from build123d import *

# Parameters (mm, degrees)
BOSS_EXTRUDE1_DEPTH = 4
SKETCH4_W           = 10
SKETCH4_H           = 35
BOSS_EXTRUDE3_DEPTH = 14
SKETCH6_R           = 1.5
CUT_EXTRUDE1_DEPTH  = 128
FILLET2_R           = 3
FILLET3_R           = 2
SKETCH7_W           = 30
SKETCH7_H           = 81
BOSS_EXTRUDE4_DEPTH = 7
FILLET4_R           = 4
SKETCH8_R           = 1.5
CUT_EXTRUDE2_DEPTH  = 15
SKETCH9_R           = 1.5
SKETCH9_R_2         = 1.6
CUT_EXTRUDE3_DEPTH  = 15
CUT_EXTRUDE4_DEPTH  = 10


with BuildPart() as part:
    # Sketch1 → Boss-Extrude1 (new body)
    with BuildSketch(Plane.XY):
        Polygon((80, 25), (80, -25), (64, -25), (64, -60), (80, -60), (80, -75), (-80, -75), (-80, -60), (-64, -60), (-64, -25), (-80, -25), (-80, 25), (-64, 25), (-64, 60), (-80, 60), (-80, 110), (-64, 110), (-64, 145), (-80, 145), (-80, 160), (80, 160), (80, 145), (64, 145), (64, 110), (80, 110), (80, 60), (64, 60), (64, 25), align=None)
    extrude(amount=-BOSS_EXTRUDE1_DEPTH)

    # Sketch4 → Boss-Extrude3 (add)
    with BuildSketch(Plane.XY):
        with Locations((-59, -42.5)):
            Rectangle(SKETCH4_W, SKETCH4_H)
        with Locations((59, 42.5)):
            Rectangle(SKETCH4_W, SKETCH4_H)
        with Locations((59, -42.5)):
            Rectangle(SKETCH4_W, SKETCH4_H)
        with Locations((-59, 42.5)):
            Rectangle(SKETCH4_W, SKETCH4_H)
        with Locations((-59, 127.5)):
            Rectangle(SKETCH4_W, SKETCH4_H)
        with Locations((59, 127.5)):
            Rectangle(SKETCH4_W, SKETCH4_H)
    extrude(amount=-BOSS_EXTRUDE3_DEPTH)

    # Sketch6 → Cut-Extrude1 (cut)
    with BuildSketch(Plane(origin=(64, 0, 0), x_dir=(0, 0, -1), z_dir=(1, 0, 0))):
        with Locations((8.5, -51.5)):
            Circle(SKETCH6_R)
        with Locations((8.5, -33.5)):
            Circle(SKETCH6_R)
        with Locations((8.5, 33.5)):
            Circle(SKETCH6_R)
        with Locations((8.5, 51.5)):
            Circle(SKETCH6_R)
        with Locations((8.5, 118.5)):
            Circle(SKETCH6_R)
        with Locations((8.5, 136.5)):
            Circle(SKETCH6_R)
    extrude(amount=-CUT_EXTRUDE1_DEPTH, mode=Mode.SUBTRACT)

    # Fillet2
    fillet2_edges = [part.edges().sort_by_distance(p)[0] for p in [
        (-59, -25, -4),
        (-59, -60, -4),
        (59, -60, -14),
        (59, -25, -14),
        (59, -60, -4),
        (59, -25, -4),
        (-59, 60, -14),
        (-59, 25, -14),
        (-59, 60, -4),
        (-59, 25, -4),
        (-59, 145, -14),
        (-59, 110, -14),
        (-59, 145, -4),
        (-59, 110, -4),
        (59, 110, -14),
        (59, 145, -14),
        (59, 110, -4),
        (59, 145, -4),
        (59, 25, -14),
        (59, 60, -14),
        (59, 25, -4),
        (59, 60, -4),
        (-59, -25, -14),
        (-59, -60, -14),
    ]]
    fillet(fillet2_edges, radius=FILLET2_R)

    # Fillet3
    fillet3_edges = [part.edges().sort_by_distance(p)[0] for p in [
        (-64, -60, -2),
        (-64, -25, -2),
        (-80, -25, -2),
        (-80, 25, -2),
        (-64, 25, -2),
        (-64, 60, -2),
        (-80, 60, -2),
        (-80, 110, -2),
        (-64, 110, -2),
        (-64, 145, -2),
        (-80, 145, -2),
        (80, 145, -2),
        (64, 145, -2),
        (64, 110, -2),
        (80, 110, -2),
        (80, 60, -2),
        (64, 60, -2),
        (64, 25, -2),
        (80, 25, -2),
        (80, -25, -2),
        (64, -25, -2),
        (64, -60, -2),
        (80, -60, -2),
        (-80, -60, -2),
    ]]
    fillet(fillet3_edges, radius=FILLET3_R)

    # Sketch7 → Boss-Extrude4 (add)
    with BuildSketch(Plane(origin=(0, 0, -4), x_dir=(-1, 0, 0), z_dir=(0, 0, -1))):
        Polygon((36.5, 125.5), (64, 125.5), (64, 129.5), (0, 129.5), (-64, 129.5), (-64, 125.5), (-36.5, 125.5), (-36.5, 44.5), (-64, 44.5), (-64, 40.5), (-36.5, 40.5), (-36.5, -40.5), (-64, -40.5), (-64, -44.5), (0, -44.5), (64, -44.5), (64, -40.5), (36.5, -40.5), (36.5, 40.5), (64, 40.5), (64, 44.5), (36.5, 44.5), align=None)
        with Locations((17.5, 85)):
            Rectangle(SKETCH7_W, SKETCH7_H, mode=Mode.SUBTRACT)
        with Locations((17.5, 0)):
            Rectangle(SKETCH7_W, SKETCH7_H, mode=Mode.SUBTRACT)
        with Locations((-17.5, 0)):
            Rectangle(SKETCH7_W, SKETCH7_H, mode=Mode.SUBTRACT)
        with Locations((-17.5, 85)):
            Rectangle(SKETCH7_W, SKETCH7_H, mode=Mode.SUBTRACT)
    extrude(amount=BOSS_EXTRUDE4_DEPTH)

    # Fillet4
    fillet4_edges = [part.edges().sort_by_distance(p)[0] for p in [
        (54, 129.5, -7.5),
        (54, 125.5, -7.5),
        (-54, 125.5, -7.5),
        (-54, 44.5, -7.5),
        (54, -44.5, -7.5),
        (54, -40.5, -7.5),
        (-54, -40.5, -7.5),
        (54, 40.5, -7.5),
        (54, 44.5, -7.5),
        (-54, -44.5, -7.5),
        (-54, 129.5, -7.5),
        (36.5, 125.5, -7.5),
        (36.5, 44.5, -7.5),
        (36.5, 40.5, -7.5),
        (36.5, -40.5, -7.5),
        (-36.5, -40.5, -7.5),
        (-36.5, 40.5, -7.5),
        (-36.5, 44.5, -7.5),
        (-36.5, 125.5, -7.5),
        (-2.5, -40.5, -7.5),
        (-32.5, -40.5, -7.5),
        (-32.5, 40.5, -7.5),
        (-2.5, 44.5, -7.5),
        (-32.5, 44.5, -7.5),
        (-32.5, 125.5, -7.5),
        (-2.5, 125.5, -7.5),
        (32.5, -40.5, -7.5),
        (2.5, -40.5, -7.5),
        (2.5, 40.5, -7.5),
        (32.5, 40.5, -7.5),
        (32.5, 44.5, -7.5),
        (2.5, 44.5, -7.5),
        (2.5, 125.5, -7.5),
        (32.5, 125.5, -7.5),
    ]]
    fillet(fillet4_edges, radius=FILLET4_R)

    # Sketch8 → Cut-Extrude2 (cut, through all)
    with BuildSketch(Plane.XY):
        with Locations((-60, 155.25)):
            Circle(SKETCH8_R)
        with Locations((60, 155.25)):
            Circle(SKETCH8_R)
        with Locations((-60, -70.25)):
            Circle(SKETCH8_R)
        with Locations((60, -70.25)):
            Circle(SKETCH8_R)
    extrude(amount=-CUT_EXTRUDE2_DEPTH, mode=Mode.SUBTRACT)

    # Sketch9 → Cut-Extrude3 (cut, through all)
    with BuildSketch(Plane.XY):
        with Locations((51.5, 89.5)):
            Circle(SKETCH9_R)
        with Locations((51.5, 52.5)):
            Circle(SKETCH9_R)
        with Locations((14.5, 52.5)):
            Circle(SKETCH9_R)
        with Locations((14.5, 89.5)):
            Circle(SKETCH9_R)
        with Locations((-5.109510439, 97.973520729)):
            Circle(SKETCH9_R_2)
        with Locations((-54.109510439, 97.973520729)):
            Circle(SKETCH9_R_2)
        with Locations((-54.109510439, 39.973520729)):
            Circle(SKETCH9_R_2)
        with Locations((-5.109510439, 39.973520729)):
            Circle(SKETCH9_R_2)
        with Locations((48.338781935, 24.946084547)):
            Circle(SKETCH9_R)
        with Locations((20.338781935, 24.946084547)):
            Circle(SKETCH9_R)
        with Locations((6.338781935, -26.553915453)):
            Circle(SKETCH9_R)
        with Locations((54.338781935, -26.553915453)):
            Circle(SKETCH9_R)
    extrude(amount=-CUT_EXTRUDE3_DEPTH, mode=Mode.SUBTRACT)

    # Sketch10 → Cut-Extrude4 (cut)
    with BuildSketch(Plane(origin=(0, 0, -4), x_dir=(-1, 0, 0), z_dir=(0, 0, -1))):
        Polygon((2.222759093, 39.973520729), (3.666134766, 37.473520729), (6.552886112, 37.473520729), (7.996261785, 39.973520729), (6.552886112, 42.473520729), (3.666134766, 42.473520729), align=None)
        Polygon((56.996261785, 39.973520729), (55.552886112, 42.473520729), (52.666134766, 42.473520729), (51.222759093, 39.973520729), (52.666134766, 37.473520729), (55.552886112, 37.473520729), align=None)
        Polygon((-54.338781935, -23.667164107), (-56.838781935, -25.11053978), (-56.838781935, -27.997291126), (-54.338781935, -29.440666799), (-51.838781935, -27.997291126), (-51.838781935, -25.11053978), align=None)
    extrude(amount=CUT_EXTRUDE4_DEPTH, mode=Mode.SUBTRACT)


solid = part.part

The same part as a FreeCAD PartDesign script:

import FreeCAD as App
import Part
import Sketcher
from FreeCAD import Vector
Q = App.Units.Quantity


def edges_at(feature, points):
    """Names of the edges that pass closest to the given points."""
    edges = feature.Shape.Edges
    near = lambda p: min(range(len(edges)), key=lambda i: edges[i].distToShape(Part.Vertex(*p))[0])
    return sorted({f"Edge{near(p) + 1}" for p in points})


def add_polygon(sketch, points):
    """Adds a closed chain of lines whose ends are joined by coincident constraints."""
    first, n = sketch.GeometryCount, len(points)
    for a, b in zip(points, points[1:] + points[:1]):
        sketch.addGeometry(Part.LineSegment(App.Vector(*a, 0), App.Vector(*b, 0)), False)
    for i in range(n):
        sketch.addConstraint(Sketcher.Constraint("Coincident", first + i, 2, first + (i + 1) % n, 1))

doc = App.newDocument("Part")
params = doc.addObject("Spreadsheet::Sheet", "Params")
for row, (alias, value) in enumerate([
    ("sketch1_width", "16 mm"),
    ("sketch1_width2", "160 mm"),
    ("sketch1_height", "50 mm"),
    ("sketch1_height2", "35 mm"),
    ("sketch1_height3", "15 mm"),
    ("pad1_length", "4 mm"),
    ("sketch2_width", "10 mm"),
    ("sketch2_height", "35 mm"),
    ("pad2_length", "14 mm"),
    ("sketch3_diameter", "3 mm"),
    ("pocket1_length", "128 mm"),
    ("fillet_radius", "3 mm"),
    ("fillet2_radius", "2 mm"),
    ("sketch4_width", "128 mm"),
    ("sketch4_width2", "30 mm"),
    ("sketch4_height", "4 mm"),
    ("sketch4_height2", "81 mm"),
    ("sketch4_width3", "27.5 mm"),
    ("pad3_length", "7 mm"),
    ("fillet3_radius", "4 mm"),
    ("sketch5_diameter", "3 mm"),
    ("sketch6_diameter", "3 mm"),
    ("sketch6_diameter2", "3.2 mm"),
    ("pocket4_length", "10 mm"),
], start=1):
    params.set(f"A{row}", alias)
    params.set(f"B{row}", "=" + value)
    params.setAlias(f"B{row}", alias)

body = doc.addObject("PartDesign::Body", "Body")

# Sketch on XY plane
sketch1 = body.newObject("Sketcher::SketchObject", "Sketch")
sketch1.AttachmentSupport = (doc.getObject("XY_Plane"), [""])
sketch1.MapMode = "FlatFace"
add_polygon(sketch1, [(80, -25), (80, 25), (64, 25), (64, 60), (80, 60), (80, 110), (64, 110), (64, 145), (80, 145), (80, 160), (-80, 160), (-80, 145), (-64, 145), (-64, 110), (-80, 110), (-80, 60), (-64, 60), (-64, 25), (-80, 25), (-80, -25), (-64, -25), (-64, -60), (-80, -60), (-80, -75), (80, -75), (80, -60), (64, -60), (64, -25)])  # lines 0-27
sketch1.addConstraint(Sketcher.Constraint("Vertical", 0))
sketch1.addConstraint(Sketcher.Constraint("Horizontal", 1))
sketch1.addConstraint(Sketcher.Constraint("Vertical", 2))
sketch1.addConstraint(Sketcher.Constraint("Horizontal", 3))
sketch1.addConstraint(Sketcher.Constraint("Vertical", 4))
sketch1.addConstraint(Sketcher.Constraint("Horizontal", 5))
sketch1.addConstraint(Sketcher.Constraint("Vertical", 6))
sketch1.addConstraint(Sketcher.Constraint("Horizontal", 7))
sketch1.addConstraint(Sketcher.Constraint("Vertical", 8))
sketch1.addConstraint(Sketcher.Constraint("Horizontal", 9))
sketch1.addConstraint(Sketcher.Constraint("Vertical", 10))
sketch1.addConstraint(Sketcher.Constraint("Horizontal", 11))
sketch1.addConstraint(Sketcher.Constraint("Vertical", 12))
sketch1.addConstraint(Sketcher.Constraint("Horizontal", 13))
sketch1.addConstraint(Sketcher.Constraint("Vertical", 14))
sketch1.addConstraint(Sketcher.Constraint("Horizontal", 15))
sketch1.addConstraint(Sketcher.Constraint("Vertical", 16))
sketch1.addConstraint(Sketcher.Constraint("Horizontal", 17))
sketch1.addConstraint(Sketcher.Constraint("Vertical", 18))
sketch1.addConstraint(Sketcher.Constraint("Horizontal", 19))
sketch1.addConstraint(Sketcher.Constraint("Vertical", 20))
sketch1.addConstraint(Sketcher.Constraint("Horizontal", 21))
sketch1.addConstraint(Sketcher.Constraint("Vertical", 22))
sketch1.addConstraint(Sketcher.Constraint("Horizontal", 23))
sketch1.addConstraint(Sketcher.Constraint("Vertical", 24))
sketch1.addConstraint(Sketcher.Constraint("Horizontal", 25))
sketch1.addConstraint(Sketcher.Constraint("Vertical", 26))
sketch1.addConstraint(Sketcher.Constraint("Horizontal", 27))
sketch1.addConstraint(Sketcher.Constraint("Symmetric", 0, 2, 18, 2, -1, 1))
sketch1.addConstraint(Sketcher.Constraint("Symmetric", 2, 2, 20, 2, -1, 1))
sketch1.addConstraint(Sketcher.Constraint("Symmetric", 14, 2, 24, 2, -1, 1))
sketch1.addConstraint(Sketcher.Constraint("Symmetric", 16, 2, 26, 2, -1, 1))
sketch1.addConstraint(Sketcher.Constraint("Symmetric", 7, 2, 10, 2, -2))
sketch1.addConstraint(Sketcher.Constraint("Symmetric", 5, 2, 12, 2, -2))
sketch1.addConstraint(Sketcher.Constraint("Symmetric", 3, 2, 14, 2, -2))
sketch1.addConstraint(Sketcher.Constraint("Symmetric", 1, 2, 16, 2, -2))
sketch1.addConstraint(Sketcher.Constraint("Vertical", 0, 2, 3, 2))
sketch1.addConstraint(Sketcher.Constraint("Vertical", 2, 2, 5, 2))
sketch1.addConstraint(Sketcher.Constraint("Vertical", 4, 2, 7, 2))
sketch1.addConstraint(Sketcher.Constraint("Vertical", 18, 2, 21, 2))
sketch1.addConstraint(Sketcher.Constraint("Equal", 0, 4))
sketch1.addConstraint(Sketcher.Constraint("Equal", 2, 6))
sketch1.addConstraint(Sketcher.Constraint("Equal", 10, 22))
sketch1.addConstraint(Sketcher.Constraint("DistanceX", 1, 2, 1, 1, 16.0))
sketch1.addConstraint(Sketcher.Constraint("DistanceX", 9, 2, 9, 1, 160.0))
sketch1.addConstraint(Sketcher.Constraint("DistanceY", 0, 1, 0, 2, 50.0))
sketch1.addConstraint(Sketcher.Constraint("DistanceY", 2, 1, 2, 2, 35.0))
sketch1.addConstraint(Sketcher.Constraint("DistanceY", 8, 1, 8, 2, 15.0))
sketch1.setExpression("Constraints[71]", "Params.sketch1_width")
sketch1.setExpression("Constraints[72]", "Params.sketch1_width2")
sketch1.setExpression("Constraints[73]", "Params.sketch1_height")
sketch1.setExpression("Constraints[74]", "Params.sketch1_height2")
sketch1.setExpression("Constraints[75]", "Params.sketch1_height3")
pad1 = body.newObject("PartDesign::Pad", "Pad")
pad1.Profile = sketch1
pad1.setExpression("Length", "Params.pad1_length")
pad1.Reversed = True

# Sketch on XY plane
sketch2 = body.newObject("Sketcher::SketchObject", "Sketch001")
sketch2.AttachmentSupport = (doc.getObject("XY_Plane"), [""])
sketch2.MapMode = "FlatFace"
add_polygon(sketch2, [(-64, -25), (-64, -60), (-54, -60), (-54, -25)])  # lines 0-3
add_polygon(sketch2, [(54, 60), (54, 25), (64, 25), (64, 60)])  # lines 4-7
add_polygon(sketch2, [(54, -25), (54, -60), (64, -60), (64, -25)])  # lines 8-11
add_polygon(sketch2, [(-64, 60), (-64, 25), (-54, 25), (-54, 60)])  # lines 12-15
add_polygon(sketch2, [(-64, 145), (-64, 110), (-54, 110), (-54, 145)])  # lines 16-19
add_polygon(sketch2, [(54, 145), (54, 110), (64, 110), (64, 145)])  # lines 20-23
sketch2.addConstraint(Sketcher.Constraint("Vertical", 0))
sketch2.addConstraint(Sketcher.Constraint("Horizontal", 1))
sketch2.addConstraint(Sketcher.Constraint("Vertical", 2))
sketch2.addConstraint(Sketcher.Constraint("Horizontal", 3))
sketch2.addConstraint(Sketcher.Constraint("Vertical", 4))
sketch2.addConstraint(Sketcher.Constraint("Horizontal", 5))
sketch2.addConstraint(Sketcher.Constraint("Vertical", 6))
sketch2.addConstraint(Sketcher.Constraint("Horizontal", 7))
sketch2.addConstraint(Sketcher.Constraint("Vertical", 8))
sketch2.addConstraint(Sketcher.Constraint("Horizontal", 9))
sketch2.addConstraint(Sketcher.Constraint("Vertical", 10))
sketch2.addConstraint(Sketcher.Constraint("Horizontal", 11))
sketch2.addConstraint(Sketcher.Constraint("Vertical", 12))
sketch2.addConstraint(Sketcher.Constraint("Horizontal", 13))
sketch2.addConstraint(Sketcher.Constraint("Vertical", 14))
sketch2.addConstraint(Sketcher.Constraint("Horizontal", 15))
sketch2.addConstraint(Sketcher.Constraint("Vertical", 16))
sketch2.addConstraint(Sketcher.Constraint("Horizontal", 17))
sketch2.addConstraint(Sketcher.Constraint("Vertical", 18))
sketch2.addConstraint(Sketcher.Constraint("Horizontal", 19))
sketch2.addConstraint(Sketcher.Constraint("Vertical", 20))
sketch2.addConstraint(Sketcher.Constraint("Horizontal", 21))
sketch2.addConstraint(Sketcher.Constraint("Vertical", 22))
sketch2.addConstraint(Sketcher.Constraint("Horizontal", 23))
sketch2.addConstraint(Sketcher.Constraint("Symmetric", 2, 2, 4, 2, -1, 1))
sketch2.addConstraint(Sketcher.Constraint("Symmetric", 0, 2, 6, 2, -1, 1))
sketch2.addConstraint(Sketcher.Constraint("Symmetric", 10, 2, 12, 2, -1, 1))
sketch2.addConstraint(Sketcher.Constraint("Symmetric", 8, 2, 14, 2, -1, 1))
sketch2.addConstraint(Sketcher.Constraint("Symmetric", 1, 2, 8, 2, -2))
sketch2.addConstraint(Sketcher.Constraint("Symmetric", 3, 2, 10, 2, -2))
sketch2.addConstraint(Sketcher.Constraint("Symmetric", 17, 2, 20, 2, -2))
sketch2.addConstraint(Sketcher.Constraint("Symmetric", 19, 2, 22, 2, -2))
sketch2.addConstraint(Sketcher.Constraint("Vertical", 15, 2, 16, 2))
sketch2.addConstraint(Sketcher.Constraint("Vertical", 14, 2, 17, 2))
sketch2.addConstraint(Sketcher.Constraint("Equal", 14, 16))
sketch2.addConstraint(Sketcher.Constraint("DistanceX", 1, 1, 1, 2, 10.0))
sketch2.addConstraint(Sketcher.Constraint("DistanceY", 0, 2, 0, 1, 35.0))
sketch2.addConstraint(Sketcher.Constraint("DistanceX", 0, 2, -1, 1, 64.0))
sketch2.addConstraint(Sketcher.Constraint("DistanceY", 0, 2, -1, 1, 60.0))
sketch2.addConstraint(Sketcher.Constraint("DistanceY", -1, 1, 16, 2, 110.0))
sketch2.setExpression("Constraints[59]", "Params.sketch2_width")
sketch2.setExpression("Constraints[60]", "Params.sketch2_height")
pad2 = body.newObject("PartDesign::Pad", "Pad001")
pad2.Profile = sketch2
pad2.setExpression("Length", "Params.pad2_length")
pad2.Reversed = True

# Sketch on YZ plane
sketch3 = body.newObject("Sketcher::SketchObject", "Sketch002")
sketch3.AttachmentSupport = (doc.getObject("YZ_Plane"), [""])
sketch3.MapMode = "FlatFace"
sketch3.AttachmentOffset = App.Placement(Vector(0, 0, 64), App.Rotation())
sketch3.addGeometry(Part.Circle(Vector(-51.5, -8.5, 0), Vector(0, 0, 1), 1.5), False)
sketch3.addGeometry(Part.Circle(Vector(-33.5, -8.5, 0), Vector(0, 0, 1), 1.5), False)
sketch3.addGeometry(Part.Circle(Vector(33.5, -8.5, 0), Vector(0, 0, 1), 1.5), False)
sketch3.addGeometry(Part.Circle(Vector(51.5, -8.5, 0), Vector(0, 0, 1), 1.5), False)
sketch3.addGeometry(Part.Circle(Vector(118.5, -8.5, 0), Vector(0, 0, 1), 1.5), False)
sketch3.addGeometry(Part.Circle(Vector(136.5, -8.5, 0), Vector(0, 0, 1), 1.5), False)
sketch3.addConstraint(Sketcher.Constraint("Equal", 0, 1))
sketch3.addConstraint(Sketcher.Constraint("Equal", 1, 2))
sketch3.addConstraint(Sketcher.Constraint("Equal", 2, 3))
sketch3.addConstraint(Sketcher.Constraint("Equal", 3, 4))
sketch3.addConstraint(Sketcher.Constraint("Equal", 4, 5))
sketch3.addConstraint(Sketcher.Constraint("Symmetric", 1, 3, 2, 3, -2))
sketch3.addConstraint(Sketcher.Constraint("Symmetric", 0, 3, 3, 3, -2))
sketch3.addConstraint(Sketcher.Constraint("Horizontal", 0, 3, 1, 3))
sketch3.addConstraint(Sketcher.Constraint("Horizontal", 3, 3, 4, 3))
sketch3.addConstraint(Sketcher.Constraint("Horizontal", 4, 3, 5, 3))
sketch3.addConstraint(Sketcher.Constraint("Diameter", 0, 3.0))
sketch3.addConstraint(Sketcher.Constraint("DistanceX", 0, 3, 1, 3, 18.0))
sketch3.addConstraint(Sketcher.Constraint("DistanceX", 1, 3, 2, 3, 67.0))
sketch3.addConstraint(Sketcher.Constraint("DistanceX", 3, 3, 4, 3, 67.0))
sketch3.addConstraint(Sketcher.Constraint("DistanceX", 4, 3, 5, 3, 18.0))
sketch3.addConstraint(Sketcher.Constraint("DistanceY", 0, 3, -1, 1, 8.5))
sketch3.setExpression("Constraints[10]", "Params.sketch3_diameter")
pocket1 = body.newObject("PartDesign::Pocket", "Pocket")
pocket1.Profile = sketch3
pocket1.setExpression("Length", "Params.pocket1_length")
doc.recompute()

fillet = body.newObject("PartDesign::Fillet", "Fillet")
fillet.Base = (pocket1, edges_at(pocket1, [
    (-59, -25, -4),
    (-59, -60, -4),
    (59, -60, -14),
    (59, -25, -14),
    (59, -60, -4),
    (59, -25, -4),
    (-59, 60, -14),
    (-59, 25, -14),
    (-59, 60, -4),
    (-59, 25, -4),
    (-59, 145, -14),
    (-59, 110, -14),
    (-59, 145, -4),
    (-59, 110, -4),
    (59, 110, -14),
    (59, 145, -14),
    (59, 110, -4),
    (59, 145, -4),
    (59, 25, -14),
    (59, 60, -14),
    (59, 25, -4),
    (59, 60, -4),
    (-59, -25, -14),
    (-59, -60, -14),
]))
fillet.setExpression("Radius", "Params.fillet_radius")
doc.recompute()

fillet2 = body.newObject("PartDesign::Fillet", "Fillet001")
fillet2.Base = (fillet, edges_at(fillet, [
    (-64, -60, -2),
    (-64, -25, -2),
    (-80, -25, -2),
    (-80, 25, -2),
    (-64, 25, -2),
    (-64, 60, -2),
    (-80, 60, -2),
    (-80, 110, -2),
    (-64, 110, -2),
    (-64, 145, -2),
    (-80, 145, -2),
    (80, 145, -2),
    (64, 145, -2),
    (64, 110, -2),
    (80, 110, -2),
    (80, 60, -2),
    (64, 60, -2),
    (64, 25, -2),
    (80, 25, -2),
    (80, -25, -2),
    (64, -25, -2),
    (64, -60, -2),
    (80, -60, -2),
    (-80, -60, -2),
]))
fillet2.setExpression("Radius", "Params.fillet2_radius")

# Sketch on XY plane
sketch4 = body.newObject("Sketcher::SketchObject", "Sketch003")
sketch4.AttachmentSupport = (doc.getObject("XY_Plane"), [""])
sketch4.MapMode = "FlatFace"
sketch4.AttachmentOffset = App.Placement(Vector(0, 0, -4), App.Rotation())
add_polygon(sketch4, [(-36.5, 125.5), (-64, 125.5), (-64, 129.5), (64, 129.5), (64, 125.5), (36.5, 125.5), (36.5, 44.5), (64, 44.5), (64, 40.5), (36.5, 40.5), (36.5, -40.5), (64, -40.5), (64, -44.5), (-64, -44.5), (-64, -40.5), (-36.5, -40.5), (-36.5, 40.5), (-64, 40.5), (-64, 44.5), (-36.5, 44.5)])  # lines 0-19
add_polygon(sketch4, [(2.5, -40.5), (32.5, -40.5), (32.5, 40.5), (2.5, 40.5)])  # lines 20-23
add_polygon(sketch4, [(-32.5, -40.5), (-2.5, -40.5), (-2.5, 40.5), (-32.5, 40.5)])  # lines 24-27
add_polygon(sketch4, [(2.5, 44.5), (32.5, 44.5), (32.5, 125.5), (2.5, 125.5)])  # lines 28-31
add_polygon(sketch4, [(-32.5, 44.5), (-2.5, 44.5), (-2.5, 125.5), (-32.5, 125.5)])  # lines 32-35
sketch4.addConstraint(Sketcher.Constraint("Horizontal", 0))
sketch4.addConstraint(Sketcher.Constraint("Vertical", 1))
sketch4.addConstraint(Sketcher.Constraint("Horizontal", 2))
sketch4.addConstraint(Sketcher.Constraint("Vertical", 3))
sketch4.addConstraint(Sketcher.Constraint("Horizontal", 4))
sketch4.addConstraint(Sketcher.Constraint("Vertical", 5))
sketch4.addConstraint(Sketcher.Constraint("Horizontal", 6))
sketch4.addConstraint(Sketcher.Constraint("Vertical", 7))
sketch4.addConstraint(Sketcher.Constraint("Horizontal", 8))
sketch4.addConstraint(Sketcher.Constraint("Vertical", 9))
sketch4.addConstraint(Sketcher.Constraint("Horizontal", 10))
sketch4.addConstraint(Sketcher.Constraint("Vertical", 11))
sketch4.addConstraint(Sketcher.Constraint("Horizontal", 12))
sketch4.addConstraint(Sketcher.Constraint("Vertical", 13))
sketch4.addConstraint(Sketcher.Constraint("Horizontal", 14))
sketch4.addConstraint(Sketcher.Constraint("Vertical", 15))
sketch4.addConstraint(Sketcher.Constraint("Horizontal", 16))
sketch4.addConstraint(Sketcher.Constraint("Vertical", 17))
sketch4.addConstraint(Sketcher.Constraint("Horizontal", 18))
sketch4.addConstraint(Sketcher.Constraint("Vertical", 19))
sketch4.addConstraint(Sketcher.Constraint("Horizontal", 20))
sketch4.addConstraint(Sketcher.Constraint("Vertical", 21))
sketch4.addConstraint(Sketcher.Constraint("Horizontal", 22))
sketch4.addConstraint(Sketcher.Constraint("Vertical", 23))
sketch4.addConstraint(Sketcher.Constraint("Horizontal", 24))
sketch4.addConstraint(Sketcher.Constraint("Vertical", 25))
sketch4.addConstraint(Sketcher.Constraint("Horizontal", 26))
sketch4.addConstraint(Sketcher.Constraint("Vertical", 27))
sketch4.addConstraint(Sketcher.Constraint("Horizontal", 28))
sketch4.addConstraint(Sketcher.Constraint("Vertical", 29))
sketch4.addConstraint(Sketcher.Constraint("Horizontal", 30))
sketch4.addConstraint(Sketcher.Constraint("Vertical", 31))
sketch4.addConstraint(Sketcher.Constraint("Horizontal", 32))
sketch4.addConstraint(Sketcher.Constraint("Vertical", 33))
sketch4.addConstraint(Sketcher.Constraint("Horizontal", 34))
sketch4.addConstraint(Sketcher.Constraint("Vertical", 35))
sketch4.addConstraint(Sketcher.Constraint("Symmetric", 6, 2, 12, 2, -1, 1))
sketch4.addConstraint(Sketcher.Constraint("Symmetric", 8, 2, 14, 2, -1, 1))
sketch4.addConstraint(Sketcher.Constraint("Symmetric", 10, 2, 16, 2, -1, 1))
sketch4.addConstraint(Sketcher.Constraint("Symmetric", 22, 2, 24, 2, -1, 1))
sketch4.addConstraint(Sketcher.Constraint("Symmetric", 20, 2, 26, 2, -1, 1))
sketch4.addConstraint(Sketcher.Constraint("Symmetric", 0, 2, 3, 2, -2))
sketch4.addConstraint(Sketcher.Constraint("Symmetric", 10, 2, 13, 2, -2))
sketch4.addConstraint(Sketcher.Constraint("Symmetric", 5, 2, 18, 2, -2))
sketch4.addConstraint(Sketcher.Constraint("Symmetric", 31, 2, 32, 2, -2))
sketch4.addConstraint(Sketcher.Constraint("Symmetric", 29, 2, 34, 2, -2))
sketch4.addConstraint(Sketcher.Constraint("Horizontal", 14, 2, 20, 2))
sketch4.addConstraint(Sketcher.Constraint("Horizontal", 16, 2, 21, 2))
sketch4.addConstraint(Sketcher.Constraint("Horizontal", 18, 2, 28, 2))
sketch4.addConstraint(Sketcher.Constraint("Horizontal", 19, 2, 29, 2))
sketch4.addConstraint(Sketcher.Constraint("Vertical", 3, 2, 6, 2))
sketch4.addConstraint(Sketcher.Constraint("Vertical", 5, 2, 8, 2))
sketch4.addConstraint(Sketcher.Constraint("Vertical", 21, 2, 28, 2))
sketch4.addConstraint(Sketcher.Constraint("Vertical", 23, 2, 30, 2))
sketch4.addConstraint(Sketcher.Constraint("Equal", 3, 7))
sketch4.addConstraint(Sketcher.Constraint("Equal", 5, 9))
sketch4.addConstraint(Sketcher.Constraint("DistanceX", 2, 1, 2, 2, 128.0))
sketch4.addConstraint(Sketcher.Constraint("DistanceX", 20, 1, 20, 2, 30.0))
sketch4.addConstraint(Sketcher.Constraint("DistanceY", 1, 1, 1, 2, 4.0))
sketch4.addConstraint(Sketcher.Constraint("DistanceY", 5, 2, 5, 1, 81.0))
sketch4.addConstraint(Sketcher.Constraint("DistanceX", 0, 2, 0, 1, 27.5))
sketch4.addConstraint(Sketcher.Constraint("DistanceX", 20, 2, 9, 2, 4.0))
sketch4.setExpression("Constraints[92]", "Params.sketch4_width")
sketch4.setExpression("Constraints[93]", "Params.sketch4_width2")
sketch4.setExpression("Constraints[94]", "Params.sketch4_height")
sketch4.setExpression("Constraints[95]", "Params.sketch4_height2")
sketch4.setExpression("Constraints[96]", "Params.sketch4_width3")
pad3 = body.newObject("PartDesign::Pad", "Pad002")
pad3.Profile = sketch4
pad3.setExpression("Length", "Params.pad3_length")
pad3.Reversed = True
doc.recompute()

fillet3 = body.newObject("PartDesign::Fillet", "Fillet002")
fillet3.Base = (pad3, edges_at(pad3, [
    (54, 129.5, -7.5),
    (54, 125.5, -7.5),
    (-54, 125.5, -7.5),
    (-54, 44.5, -7.5),
    (54, -44.5, -7.5),
    (54, -40.5, -7.5),
    (-54, -40.5, -7.5),
    (54, 40.5, -7.5),
    (54, 44.5, -7.5),
    (-54, -44.5, -7.5),
    (-54, 129.5, -7.5),
    (36.5, 125.5, -7.5),
    (36.5, 44.5, -7.5),
    (36.5, 40.5, -7.5),
    (36.5, -40.5, -7.5),
    (-36.5, -40.5, -7.5),
    (-36.5, 40.5, -7.5),
    (-36.5, 44.5, -7.5),
    (-36.5, 125.5, -7.5),
    (-2.5, -40.5, -7.5),
    (-32.5, -40.5, -7.5),
    (-32.5, 40.5, -7.5),
    (-2.5, 44.5, -7.5),
    (-32.5, 44.5, -7.5),
    (-32.5, 125.5, -7.5),
    (-2.5, 125.5, -7.5),
    (32.5, -40.5, -7.5),
    (2.5, -40.5, -7.5),
    (2.5, 40.5, -7.5),
    (32.5, 40.5, -7.5),
    (32.5, 44.5, -7.5),
    (2.5, 44.5, -7.5),
    (2.5, 125.5, -7.5),
    (32.5, 125.5, -7.5),
]))
fillet3.setExpression("Radius", "Params.fillet3_radius")

# Sketch on XY plane
sketch5 = body.newObject("Sketcher::SketchObject", "Sketch004")
sketch5.AttachmentSupport = (doc.getObject("XY_Plane"), [""])
sketch5.MapMode = "FlatFace"
sketch5.addGeometry(Part.Circle(Vector(-60, 155.2, 0), Vector(0, 0, 1), 1.5), False)
sketch5.addGeometry(Part.Circle(Vector(60, 155.2, 0), Vector(0, 0, 1), 1.5), False)
sketch5.addGeometry(Part.Circle(Vector(-60, -70.2, 0), Vector(0, 0, 1), 1.5), False)
sketch5.addGeometry(Part.Circle(Vector(60, -70.2, 0), Vector(0, 0, 1), 1.5), False)
sketch5.addConstraint(Sketcher.Constraint("Equal", 0, 1))
sketch5.addConstraint(Sketcher.Constraint("Equal", 1, 2))
sketch5.addConstraint(Sketcher.Constraint("Equal", 2, 3))
sketch5.addConstraint(Sketcher.Constraint("Symmetric", 0, 3, 1, 3, -2))
sketch5.addConstraint(Sketcher.Constraint("Symmetric", 2, 3, 3, 3, -2))
sketch5.addConstraint(Sketcher.Constraint("Vertical", 0, 3, 2, 3))
sketch5.addConstraint(Sketcher.Constraint("Diameter", 0, 3.0))
sketch5.addConstraint(Sketcher.Constraint("DistanceX", 0, 3, -1, 1, 60.0))
sketch5.addConstraint(Sketcher.Constraint("DistanceY", 2, 3, 0, 3, 225.5))
sketch5.addConstraint(Sketcher.Constraint("DistanceY", -1, 1, 0, 3, 155.25))
sketch5.setExpression("Constraints[6]", "Params.sketch5_diameter")
pocket2 = body.newObject("PartDesign::Pocket", "Pocket001")
pocket2.Profile = sketch5
pocket2.Type = "ThroughAll"

# Sketch on XY plane
sketch6 = body.newObject("Sketcher::SketchObject", "Sketch005")
sketch6.AttachmentSupport = (doc.getObject("XY_Plane"), [""])
sketch6.MapMode = "FlatFace"
sketch6.addGeometry(Part.Circle(Vector(51.5, 89.5, 0), Vector(0, 0, 1), 1.5), False)
sketch6.addGeometry(Part.Circle(Vector(51.5, 52.5, 0), Vector(0, 0, 1), 1.5), False)
sketch6.addGeometry(Part.Circle(Vector(14.5, 52.5, 0), Vector(0, 0, 1), 1.5), False)
sketch6.addGeometry(Part.Circle(Vector(14.5, 89.5, 0), Vector(0, 0, 1), 1.5), False)
sketch6.addGeometry(Part.Circle(Vector(-5.1, 98, 0), Vector(0, 0, 1), 1.6), False)
sketch6.addGeometry(Part.Circle(Vector(-54.1, 98, 0), Vector(0, 0, 1), 1.6), False)
sketch6.addGeometry(Part.Circle(Vector(-54.1, 40, 0), Vector(0, 0, 1), 1.6), False)
sketch6.addGeometry(Part.Circle(Vector(-5.1, 40, 0), Vector(0, 0, 1), 1.6), False)
sketch6.addGeometry(Part.Circle(Vector(48.3, 24.9, 0), Vector(0, 0, 1), 1.5), False)
sketch6.addGeometry(Part.Circle(Vector(20.3, 24.9, 0), Vector(0, 0, 1), 1.5), False)
sketch6.addGeometry(Part.Circle(Vector(6.3, -26.6, 0), Vector(0, 0, 1), 1.5), False)
sketch6.addGeometry(Part.Circle(Vector(54.3, -26.6, 0), Vector(0, 0, 1), 1.5), False)
sketch6.addConstraint(Sketcher.Constraint("Equal", 0, 1))
sketch6.addConstraint(Sketcher.Constraint("Equal", 1, 2))
sketch6.addConstraint(Sketcher.Constraint("Equal", 2, 3))
sketch6.addConstraint(Sketcher.Constraint("Equal", 4, 5))
sketch6.addConstraint(Sketcher.Constraint("Equal", 5, 6))
sketch6.addConstraint(Sketcher.Constraint("Equal", 6, 7))
sketch6.addConstraint(Sketcher.Constraint("Equal", 3, 8))
sketch6.addConstraint(Sketcher.Constraint("Equal", 8, 9))
sketch6.addConstraint(Sketcher.Constraint("Equal", 9, 10))
sketch6.addConstraint(Sketcher.Constraint("Equal", 10, 11))
sketch6.addConstraint(Sketcher.Constraint("Horizontal", 1, 3, 2, 3))
sketch6.addConstraint(Sketcher.Constraint("Horizontal", 0, 3, 3, 3))
sketch6.addConstraint(Sketcher.Constraint("Horizontal", 4, 3, 5, 3))
sketch6.addConstraint(Sketcher.Constraint("Horizontal", 6, 3, 7, 3))
sketch6.addConstraint(Sketcher.Constraint("Horizontal", 8, 3, 9, 3))
sketch6.addConstraint(Sketcher.Constraint("Horizontal", 10, 3, 11, 3))
sketch6.addConstraint(Sketcher.Constraint("Vertical", 0, 3, 1, 3))
sketch6.addConstraint(Sketcher.Constraint("Vertical", 2, 3, 3, 3))
sketch6.addConstraint(Sketcher.Constraint("Vertical", 5, 3, 6, 3))
sketch6.addConstraint(Sketcher.Constraint("Vertical", 4, 3, 7, 3))
sketch6.addConstraint(Sketcher.Constraint("Diameter", 0, 3.0))
sketch6.addConstraint(Sketcher.Constraint("Diameter", 4, 3.2))
sketch6.addConstraint(Sketcher.Constraint("DistanceY", 1, 3, 0, 3, 37.0))
sketch6.addConstraint(Sketcher.Constraint("DistanceX", 2, 3, 1, 3, 37.0))
sketch6.addConstraint(Sketcher.Constraint("DistanceX", 5, 3, 4, 3, 49.0))
sketch6.addConstraint(Sketcher.Constraint("DistanceY", 6, 3, 5, 3, 58.0))
sketch6.addConstraint(Sketcher.Constraint("DistanceX", 9, 3, 8, 3, 28.0))
sketch6.addConstraint(Sketcher.Constraint("DistanceX", 10, 3, 9, 3, 14.0))
sketch6.addConstraint(Sketcher.Constraint("DistanceX", 10, 3, 11, 3, 48.0))
sketch6.addConstraint(Sketcher.Constraint("DistanceX", -1, 1, 0, 3, 51.5))
sketch6.addConstraint(Sketcher.Constraint("DistanceY", -1, 1, 0, 3, 89.5))
sketch6.addConstraint(Sketcher.Constraint("DistanceY", 10, 3, 9, 3, 51.5))
sketch6.addConstraint(Sketcher.Constraint("DistanceX", 4, 3, -1, 1, 5.10951))
sketch6.addConstraint(Sketcher.Constraint("DistanceY", -1, 1, 4, 3, 97.973521))
sketch6.addConstraint(Sketcher.Constraint("DistanceX", -1, 1, 8, 3, 48.338782))
sketch6.addConstraint(Sketcher.Constraint("DistanceY", -1, 1, 8, 3, 24.946085))
sketch6.setExpression("Constraints[20]", "Params.sketch6_diameter")
sketch6.setExpression("Constraints[21]", "Params.sketch6_diameter2")
pocket3 = body.newObject("PartDesign::Pocket", "Pocket002")
pocket3.Profile = sketch6
pocket3.Type = "ThroughAll"

# Sketch on XY plane
sketch7 = body.newObject("Sketcher::SketchObject", "Sketch006")
sketch7.AttachmentSupport = (doc.getObject("XY_Plane"), [""])
sketch7.MapMode = "FlatFace"
sketch7.AttachmentOffset = App.Placement(Vector(0, 0, -4), App.Rotation())
add_polygon(sketch7, [(-2.2, 40), (-3.7, 37.5), (-6.6, 37.5), (-8, 40), (-6.6, 42.5), (-3.7, 42.5)])  # lines 0-5
add_polygon(sketch7, [(-57, 40), (-55.6, 42.5), (-52.7, 42.5), (-51.2, 40), (-52.7, 37.5), (-55.6, 37.5)])  # lines 6-11
add_polygon(sketch7, [(54.3, -23.7), (56.8, -25.1), (56.8, -28), (54.3, -29.4), (51.8, -28), (51.8, -25.1)])  # lines 12-17
sketch7.addConstraint(Sketcher.Constraint("Horizontal", 1))
sketch7.addConstraint(Sketcher.Constraint("Horizontal", 4))
sketch7.addConstraint(Sketcher.Constraint("Horizontal", 7))
sketch7.addConstraint(Sketcher.Constraint("Horizontal", 10))
sketch7.addConstraint(Sketcher.Constraint("Vertical", 13))
sketch7.addConstraint(Sketcher.Constraint("Vertical", 16))
sketch7.addConstraint(Sketcher.Constraint("Parallel", 0, 3))
sketch7.addConstraint(Sketcher.Constraint("Parallel", 2, 5))
sketch7.addConstraint(Sketcher.Constraint("Parallel", 3, 6))
sketch7.addConstraint(Sketcher.Constraint("Parallel", 5, 8))
sketch7.addConstraint(Sketcher.Constraint("Parallel", 6, 9))
sketch7.addConstraint(Sketcher.Constraint("Parallel", 8, 11))
sketch7.addConstraint(Sketcher.Constraint("Perpendicular", 9, 12))
sketch7.addConstraint(Sketcher.Constraint("Perpendicular", 11, 14))
sketch7.addConstraint(Sketcher.Constraint("Parallel", 12, 15))
sketch7.addConstraint(Sketcher.Constraint("Parallel", 14, 17))
sketch7.addConstraint(Sketcher.Constraint("Horizontal", 2, 2, 5, 2))
sketch7.addConstraint(Sketcher.Constraint("Horizontal", 4, 2, 6, 2))
sketch7.addConstraint(Sketcher.Constraint("Horizontal", 5, 2, 8, 2))
sketch7.addConstraint(Sketcher.Constraint("Horizontal", 1, 2, 9, 2))
sketch7.addConstraint(Sketcher.Constraint("Horizontal", 8, 2, 11, 2))
sketch7.addConstraint(Sketcher.Constraint("Horizontal", 13, 2, 15, 2))
sketch7.addConstraint(Sketcher.Constraint("Horizontal", 12, 2, 16, 2))
sketch7.addConstraint(Sketcher.Constraint("Vertical", 1, 2, 3, 2))
sketch7.addConstraint(Sketcher.Constraint("Vertical", 0, 2, 4, 2))
sketch7.addConstraint(Sketcher.Constraint("Equal", 4, 7))
sketch7.addConstraint(Sketcher.Constraint("Equal", 10, 13))
sketch7.addConstraint(Sketcher.Constraint("Equal", 11, 12))
sketch7.addConstraint(Sketcher.Constraint("Angle", 0, Q("-120 deg")))
sketch7.addConstraint(Sketcher.Constraint("DistanceY", 1, 2, 3, 2, 5.0))
sketch7.addConstraint(Sketcher.Constraint("DistanceX", 6, 2, 3, 2, 49.0))
sketch7.addConstraint(Sketcher.Constraint("DistanceX", 1, 2, 1, 1, 2.886751))
sketch7.addConstraint(Sketcher.Constraint("DistanceY", -1, 1, 0, 2, 37.473521))
sketch7.addConstraint(Sketcher.Constraint("DistanceX", 2, 2, -1, 1, 7.996262))
sketch7.addConstraint(Sketcher.Constraint("DistanceX", -1, 1, 12, 2, 56.838782))
sketch7.addConstraint(Sketcher.Constraint("DistanceY", 12, 2, -1, 1, 25.11054))
pocket4 = body.newObject("PartDesign::Pocket", "Pocket003")
pocket4.Profile = sketch7
pocket4.setExpression("Length", "Params.pocket4_length")

doc.recompute()
